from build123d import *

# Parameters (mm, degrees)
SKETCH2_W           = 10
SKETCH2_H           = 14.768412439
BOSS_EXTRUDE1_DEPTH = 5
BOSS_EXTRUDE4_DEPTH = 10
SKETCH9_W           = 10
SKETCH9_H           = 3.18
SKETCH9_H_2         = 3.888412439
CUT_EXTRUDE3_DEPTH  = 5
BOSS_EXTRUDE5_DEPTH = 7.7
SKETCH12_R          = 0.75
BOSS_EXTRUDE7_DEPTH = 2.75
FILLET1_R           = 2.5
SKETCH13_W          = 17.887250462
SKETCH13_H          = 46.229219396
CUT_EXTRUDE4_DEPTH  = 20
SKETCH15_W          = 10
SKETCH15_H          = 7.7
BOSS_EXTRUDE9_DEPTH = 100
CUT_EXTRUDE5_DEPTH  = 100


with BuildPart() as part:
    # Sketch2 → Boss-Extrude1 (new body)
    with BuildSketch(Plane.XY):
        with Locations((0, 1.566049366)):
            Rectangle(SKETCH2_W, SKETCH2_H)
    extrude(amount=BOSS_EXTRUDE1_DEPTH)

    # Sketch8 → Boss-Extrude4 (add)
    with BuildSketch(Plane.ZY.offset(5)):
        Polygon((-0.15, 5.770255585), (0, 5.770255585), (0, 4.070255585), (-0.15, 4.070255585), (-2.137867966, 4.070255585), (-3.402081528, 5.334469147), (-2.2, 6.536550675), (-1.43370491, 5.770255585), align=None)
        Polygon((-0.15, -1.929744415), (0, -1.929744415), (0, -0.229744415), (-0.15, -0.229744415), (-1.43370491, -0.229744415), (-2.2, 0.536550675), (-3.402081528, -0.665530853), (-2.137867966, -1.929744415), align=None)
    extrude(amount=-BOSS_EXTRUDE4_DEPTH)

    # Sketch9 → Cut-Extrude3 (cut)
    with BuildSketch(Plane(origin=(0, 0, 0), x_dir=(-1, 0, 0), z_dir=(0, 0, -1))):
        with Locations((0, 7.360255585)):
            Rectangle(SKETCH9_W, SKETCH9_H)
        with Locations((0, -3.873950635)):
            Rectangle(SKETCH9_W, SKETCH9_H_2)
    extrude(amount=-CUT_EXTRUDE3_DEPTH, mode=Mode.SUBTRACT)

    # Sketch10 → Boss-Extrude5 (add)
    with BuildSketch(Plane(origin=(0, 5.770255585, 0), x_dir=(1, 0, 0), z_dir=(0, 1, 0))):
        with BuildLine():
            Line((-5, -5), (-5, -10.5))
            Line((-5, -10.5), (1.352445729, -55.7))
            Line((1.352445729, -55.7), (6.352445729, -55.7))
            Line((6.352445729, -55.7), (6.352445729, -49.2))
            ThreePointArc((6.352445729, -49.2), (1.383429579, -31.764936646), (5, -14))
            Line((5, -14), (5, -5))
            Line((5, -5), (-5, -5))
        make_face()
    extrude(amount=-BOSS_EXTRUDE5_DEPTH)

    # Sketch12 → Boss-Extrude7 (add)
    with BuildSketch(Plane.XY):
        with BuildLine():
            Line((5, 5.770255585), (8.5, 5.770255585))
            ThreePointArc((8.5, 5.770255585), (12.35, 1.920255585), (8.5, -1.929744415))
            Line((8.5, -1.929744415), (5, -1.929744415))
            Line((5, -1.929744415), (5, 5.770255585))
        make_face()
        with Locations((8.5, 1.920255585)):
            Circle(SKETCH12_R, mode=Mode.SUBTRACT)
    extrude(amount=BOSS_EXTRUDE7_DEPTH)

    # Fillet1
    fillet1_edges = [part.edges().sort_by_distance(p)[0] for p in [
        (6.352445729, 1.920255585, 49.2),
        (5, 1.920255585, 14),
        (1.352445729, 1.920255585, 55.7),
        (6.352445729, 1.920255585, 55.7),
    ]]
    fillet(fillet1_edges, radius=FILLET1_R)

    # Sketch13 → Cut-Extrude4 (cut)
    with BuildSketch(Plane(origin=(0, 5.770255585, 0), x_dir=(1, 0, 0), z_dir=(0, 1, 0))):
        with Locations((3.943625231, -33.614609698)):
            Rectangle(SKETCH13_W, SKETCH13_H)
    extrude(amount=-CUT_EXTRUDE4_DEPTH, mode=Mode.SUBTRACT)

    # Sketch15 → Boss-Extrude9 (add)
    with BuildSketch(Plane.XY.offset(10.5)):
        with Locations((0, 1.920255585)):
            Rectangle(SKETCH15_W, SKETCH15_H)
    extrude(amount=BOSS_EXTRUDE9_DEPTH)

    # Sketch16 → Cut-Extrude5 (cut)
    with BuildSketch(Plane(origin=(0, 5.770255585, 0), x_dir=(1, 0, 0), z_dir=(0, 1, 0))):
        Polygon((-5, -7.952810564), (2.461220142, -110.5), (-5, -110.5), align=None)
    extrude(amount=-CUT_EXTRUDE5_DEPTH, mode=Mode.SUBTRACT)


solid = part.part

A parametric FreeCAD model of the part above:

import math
import FreeCAD as App
import Part
import Sketcher
Q = App.Units.Quantity


def edges_at(feature, points):
    """Names of the edges that pass closest to the given points."""
    edges = feature.Shape.Edges
    near = lambda p: min(range(len(edges)), key=lambda i: edges[i].distToShape(Part.Vertex(*p))[0])
    return sorted({f"Edge{near(p) + 1}" for p in points})

doc = App.newDocument("Part")
body = doc.addObject("PartDesign::Body", "Body")

# Sketch on XY plane
sketch1 = body.newObject("Sketcher::SketchObject", "Sketch")
sketch1.AttachmentSupport = (doc.getObject("XY_Plane"), [""])
sketch1.MapMode = "FlatFace"
sketch1.addGeometry([
    Part.LineSegment(App.Vector(-5, 8.950256, 0), App.Vector(-5, -5.818157, 0)),
    Part.LineSegment(App.Vector(-5, -5.818157, 0), App.Vector(5, -5.818157, 0)),
    Part.LineSegment(App.Vector(5, -5.818157, 0), App.Vector(5, 8.950256, 0)),
    Part.LineSegment(App.Vector(5, 8.950256, 0), App.Vector(-5, 8.950256, 0)),
], False)
sketch1.addConstraint([
    Sketcher.Constraint("Coincident", 0, 2, 1, 1),
    Sketcher.Constraint("Coincident", 1, 2, 2, 1),
    Sketcher.Constraint("Coincident", 2, 2, 3, 1),
    Sketcher.Constraint("Coincident", 3, 2, 0, 1),
    Sketcher.Constraint("Vertical", 0),
    Sketcher.Constraint("Horizontal", 1),
    Sketcher.Constraint("Vertical", 2),
    Sketcher.Constraint("Horizontal", 3),
    Sketcher.Constraint("DistanceX", 1, 1, 1, 2, Q("10 mm")),
    Sketcher.Constraint("DistanceX", 0, 2, -1, 1, Q("5 mm")),
    Sketcher.Constraint("DistanceY", 0, 2, 0, 1, Q("14.768412 mm")),
    Sketcher.Constraint("DistanceY", 0, 2, -1, 1, Q("5.818157 mm")),
])
pad1 = body.newObject("PartDesign::Pad", "Pad")
pad1.Profile = sketch1
pad1.Length = 5

# Sketch on YZ plane
sketch2 = body.newObject("Sketcher::SketchObject", "Sketch001")
sketch2.AttachmentSupport = (doc.getObject("YZ_Plane"), [""])
sketch2.MapMode = "FlatFace"
sketch2.AttachmentOffset = App.Placement(App.Vector(0, 0, -5), App.Rotation())
sketch2.addGeometry([
    Part.LineSegment(App.Vector(5.770256, 0, 0), App.Vector(5.770256, -1.433705, 0)),  # 0
    Part.LineSegment(App.Vector(5.770256, -1.433705, 0), App.Vector(6.536551, -2.2, 0)),  # 1
    Part.LineSegment(App.Vector(6.536551, -2.2, 0), App.Vector(5.334469, -3.402082, 0)),  # 2
    Part.LineSegment(App.Vector(5.334469, -3.402082, 0), App.Vector(4.070256, -2.137868, 0)),  # 3
    Part.LineSegment(App.Vector(4.070256, -2.137868, 0), App.Vector(4.070256, 0, 0)),  # 4
    Part.LineSegment(App.Vector(4.070256, 0, 0), App.Vector(5.770256, 0, 0)),  # 5
    Part.LineSegment(App.Vector(-1.929744, 0, 0), App.Vector(-0.229744, 0, 0)),  # 6
    Part.LineSegment(App.Vector(-0.229744, 0, 0), App.Vector(-0.229744, -1.433705, 0)),  # 7
    Part.LineSegment(App.Vector(-0.229744, -1.433705, 0), App.Vector(0.536551, -2.2, 0)),  # 8
    Part.LineSegment(App.Vector(0.536551, -2.2, 0), App.Vector(-0.665531, -3.402082, 0)),  # 9
    Part.LineSegment(App.Vector(-0.665531, -3.402082, 0), App.Vector(-1.929744, -2.137868, 0)),  # 10
    Part.LineSegment(App.Vector(-1.929744, -2.137868, 0), App.Vector(-1.929744, 0, 0)),  # 11
], False)
sketch2.addConstraint([
    Sketcher.Constraint("Coincident", 0, 2, 1, 1),
    Sketcher.Constraint("Coincident", 1, 2, 2, 1),
    Sketcher.Constraint("Coincident", 2, 2, 3, 1),
    Sketcher.Constraint("Coincident", 3, 2, 4, 1),
    Sketcher.Constraint("Coincident", 4, 2, 5, 1),
    Sketcher.Constraint("Coincident", 5, 2, 0, 1),
    Sketcher.Constraint("Coincident", 6, 2, 7, 1),
    Sketcher.Constraint("Coincident", 7, 2, 8, 1),
    Sketcher.Constraint("Coincident", 8, 2, 9, 1),
    Sketcher.Constraint("Coincident", 9, 2, 10, 1),
    Sketcher.Constraint("Coincident", 10, 2, 11, 1),
    Sketcher.Constraint("Coincident", 11, 2, 6, 1),
    Sketcher.Constraint("Vertical", 0),
    Sketcher.Constraint("Vertical", 4),
    Sketcher.Constraint("Horizontal", 5),
    Sketcher.Constraint("Horizontal", 6),
    Sketcher.Constraint("Vertical", 7),
    Sketcher.Constraint("Vertical", 11),
    Sketcher.Constraint("PointOnObject", 4, 2, -1),
    Sketcher.Constraint("PointOnObject", 6, 2, -1),
    Sketcher.Constraint("Perpendicular", 1, 2),
    Sketcher.Constraint("Perpendicular", 2, 3),
    Sketcher.Constraint("Parallel", 3, 8),
    Sketcher.Constraint("Perpendicular", 8, 9),
    Sketcher.Constraint("Perpendicular", 9, 10),
    Sketcher.Constraint("Horizontal", 0, 2, 7, 2),
    Sketcher.Constraint("Horizontal", 1, 2, 8, 2),
    Sketcher.Constraint("Horizontal", 2, 2, 9, 2),
    Sketcher.Constraint("Horizontal", 3, 2, 10, 2),
    Sketcher.Constraint("Angle", 1, Q("-45 deg")),
    Sketcher.Constraint("DistanceX", 5, 1, 5, 2, Q("1.7 mm")),
    Sketcher.Constraint("DistanceX", 6, 2, 5, 2, Q("6 mm")),
    Sketcher.Constraint("Distance", 2, Q("1.7 mm")),
    Sketcher.Constraint("DistanceY", 1, 2, -1, 1, Q("2.2 mm")),
    Sketcher.Constraint("DistanceY", 0, 2, 0, 1, Q("1.433705 mm")),
    Sketcher.Constraint("DistanceX", -1, 1, 1, 2, Q("6.536551 mm")),
])
pad2 = body.newObject("PartDesign::Pad", "Pad001")
pad2.Profile = sketch2
pad2.Length = 10

# Sketch on XY plane
sketch3 = body.newObject("Sketcher::SketchObject", "Sketch002")
sketch3.AttachmentSupport = (doc.getObject("XY_Plane"), [""])
sketch3.MapMode = "FlatFace"
sketch3.addGeometry([
    Part.LineSegment(App.Vector(5, 8.950256, 0), App.Vector(5, 5.770256, 0)),  # 0
    Part.LineSegment(App.Vector(5, 5.770256, 0), App.Vector(-5, 5.770256, 0)),  # 1
    Part.LineSegment(App.Vector(-5, 5.770256, 0), App.Vector(-5, 8.950256, 0)),  # 2
    Part.LineSegment(App.Vector(-5, 8.950256, 0), App.Vector(5, 8.950256, 0)),  # 3
    Part.LineSegment(App.Vector(5, -1.929744, 0), App.Vector(5, -5.818157, 0)),  # 4
    Part.LineSegment(App.Vector(5, -5.818157, 0), App.Vector(-5, -5.818157, 0)),  # 5
    Part.LineSegment(App.Vector(-5, -5.818157, 0), App.Vector(-5, -1.929744, 0)),  # 6
    Part.LineSegment(App.Vector(-5, -1.929744, 0), App.Vector(5, -1.929744, 0)),  # 7
], False)
sketch3.addConstraint([
    Sketcher.Constraint("Coincident", 0, 2, 1, 1),
    Sketcher.Constraint("Coincident", 1, 2, 2, 1),
    Sketcher.Constraint("Coincident", 2, 2, 3, 1),
    Sketcher.Constraint("Coincident", 3, 2, 0, 1),
    Sketcher.Constraint("Coincident", 4, 2, 5, 1),
    Sketcher.Constraint("Coincident", 5, 2, 6, 1),
    Sketcher.Constraint("Coincident", 6, 2, 7, 1),
    Sketcher.Constraint("Coincident", 7, 2, 4, 1),
    Sketcher.Constraint("Vertical", 0),
    Sketcher.Constraint("Horizontal", 1),
    Sketcher.Constraint("Vertical", 2),
    Sketcher.Constraint("Horizontal", 3),
    Sketcher.Constraint("Vertical", 4),
    Sketcher.Constraint("Horizontal", 5),
    Sketcher.Constraint("Vertical", 6),
    Sketcher.Constraint("Horizontal", 7),
    Sketcher.Constraint("Vertical", 3, 2, 4, 2),
    Sketcher.Constraint("Vertical", 2, 2, 5, 2),
    Sketcher.Constraint("DistanceX", 1, 2, 1, 1, Q("10 mm")),
    Sketcher.Constraint("DistanceX", -1, 1, 0, 2, Q("5 mm")),
    Sketcher.Constraint("DistanceY", 0, 2, 0, 1, Q("3.18 mm")),
    Sketcher.Constraint("DistanceY", 6, 2, 1, 2, Q("7.7 mm")),
    Sketcher.Constraint("DistanceY", 4, 2, 4, 1, Q("3.888412 mm")),
    Sketcher.Constraint("DistanceY", -1, 1, 0, 2, Q("5.770256 mm")),
])
pocket1 = body.newObject("PartDesign::Pocket", "Pocket")
pocket1.Profile = sketch3
pocket1.Length = 5
pocket1.Reversed = True

# Sketch on XZ plane
sketch4 = body.newObject("Sketcher::SketchObject", "Sketch003")
sketch4.AttachmentSupport = (doc.getObject("XZ_Plane"), [""])
sketch4.MapMode = "FlatFace"
sketch4.AttachmentOffset = App.Placement(App.Vector(0, 0, -5.770256), App.Rotation())
sketch4.addGeometry([
    Part.LineSegment(App.Vector(-5, 5, 0), App.Vector(-5, 10.5, 0)),  # 0
    Part.LineSegment(App.Vector(-5, 10.5, 0), App.Vector(1.352446, 55.7, 0)),  # 1
    Part.LineSegment(App.Vector(1.352446, 55.7, 0), App.Vector(6.352446, 55.7, 0)),  # 2
    Part.LineSegment(App.Vector(6.352446, 55.7, 0), App.Vector(6.352446, 49.2, 0)),  # 3
    Part.ArcOfCircle(Part.Circle(App.Vector(39.608899, 30.296247, 0), App.Vector(0, 0, 1), 38.253674), math.radians(150.385078), math.radians(205.214278)),  # 4
    Part.LineSegment(App.Vector(5, 14, 0), App.Vector(5, 5, 0)),  # 5
    Part.LineSegment(App.Vector(5, 5, 0), App.Vector(-5, 5, 0)),  # 6
], False)
sketch4.addConstraint([
    Sketcher.Constraint("Coincident", 0, 2, 1, 1),
    Sketcher.Constraint("Coincident", 1, 2, 2, 1),
    Sketcher.Constraint("Coincident", 2, 2, 3, 1),
    Sketcher.Constraint("Coincident", 3, 2, 4, 1),
    Sketcher.Constraint("Coincident", 4, 2, 5, 1),
    Sketcher.Constraint("Coincident", 5, 2, 6, 1),
    Sketcher.Constraint("Coincident", 6, 2, 0, 1),
    Sketcher.Constraint("Vertical", 0),
    Sketcher.Constraint("Horizontal", 2),
    Sketcher.Constraint("Vertical", 3),
    Sketcher.Constraint("Vertical", 5),
    Sketcher.Constraint("Horizontal", 6),
    Sketcher.Constraint("DistanceX", 2, 1, 2, 2, Q("5 mm")),
    Sketcher.Constraint("DistanceX", 6, 2, 6, 1, Q("10 mm")),
    Sketcher.Constraint("DistanceY", 5, 2, 5, 1, Q("9 mm")),
    Sketcher.Constraint("Angle", 1, Q("82 deg")),
    Sketcher.Constraint("DistanceY", 0, 1, 0, 2, Q("5.5 mm")),
    Sketcher.Constraint("DistanceY", 3, 2, 3, 1, Q("6.5 mm")),
    Sketcher.Constraint("DistanceX", 0, 2, -1, 1, Q("5 mm")),
    Sketcher.Constraint("DistanceY", -1, 1, 4, 2, Q("14 mm")),
    Sketcher.Constraint("DistanceY", -1, 1, 1, 2, Q("55.7 mm")),
    Sketcher.Constraint("Radius", 4, Q("38.253674 mm")),
])
pad3 = body.newObject("PartDesign::Pad", "Pad002")
pad3.Profile = sketch4
pad3.Length = 7.7

# Sketch on XY plane
sketch5 = body.newObject("Sketcher::SketchObject", "Sketch004")
sketch5.AttachmentSupport = (doc.getObject("XY_Plane"), [""])
sketch5.MapMode = "FlatFace"
sketch5.addGeometry([
    Part.LineSegment(App.Vector(8.5, 5.770256, 0), App.Vector(5, 5.770256, 0)),  # 0
    Part.LineSegment(App.Vector(5, 5.770256, 0), App.Vector(5, -1.929744, 0)),  # 1
    Part.LineSegment(App.Vector(5, -1.929744, 0), App.Vector(8.5, -1.929744, 0)),  # 2
    Part.ArcOfCircle(Part.Circle(App.Vector(8.5, 1.920256, 0), App.Vector(0, 0, 1), 3.85), math.radians(-90), math.radians(90)),  # 3
    Part.Circle(App.Vector(8.5, 1.920256, 0), App.Vector(0, 0, 1), 0.75),  # 4
], False)
sketch5.addConstraint([
    Sketcher.Constraint("Coincident", 0, 2, 1, 1),
    Sketcher.Constraint("Coincident", 1, 2, 2, 1),
    Sketcher.Constraint("Tangent", 2, 2, 3, 1),
    Sketcher.Constraint("Tangent", 3, 2, 0, 1),
    Sketcher.Constraint("Horizontal", 0),
    Sketcher.Constraint("Vertical", 1),
    Sketcher.Constraint("Horizontal", 2),
    Sketcher.Constraint("Coincident", 4, 3, 3, 3),
    Sketcher.Constraint("Diameter", 4, Q("1.5 mm")),
    Sketcher.Constraint("Radius", 3, Q("3.85 mm")),
    Sketcher.Constraint("DistanceX", 0, 2, 0, 1, Q("3.5 mm")),
    Sketcher.Constraint("DistanceX", -1, 1, 0, 2, Q("5 mm")),
    Sketcher.Constraint("DistanceY", -1, 1, 3, 3, Q("1.920256 mm")),
])
pad4 = body.newObject("PartDesign::Pad", "Pad003")
pad4.Profile = sketch5
pad4.Length = 2.75
doc.recompute()

fillet = body.newObject("PartDesign::Fillet", "Fillet")
fillet.Base = (pad4, edges_at(pad4, [
    (6.352, 1.92, 49.2),
    (5, 1.92, 14),
    (1.352, 1.92, 55.7),
    (6.352, 1.92, 55.7),
]))
fillet.Radius = 2.5

# Sketch on XZ plane
sketch6 = body.newObject("Sketcher::SketchObject", "Sketch005")
sketch6.AttachmentSupport = (doc.getObject("XZ_Plane"), [""])
sketch6.MapMode = "FlatFace"
sketch6.AttachmentOffset = App.Placement(App.Vector(0, 0, -5.770256), App.Rotation())
sketch6.addGeometry([
    Part.LineSegment(App.Vector(-5, 10.5, 0), App.Vector(-5, 56.729219, 0)),
    Part.LineSegment(App.Vector(-5, 56.729219, 0), App.Vector(12.88725, 56.729219, 0)),
    Part.LineSegment(App.Vector(12.88725, 56.729219, 0), App.Vector(12.88725, 10.5, 0)),
    Part.LineSegment(App.Vector(12.88725, 10.5, 0), App.Vector(-5, 10.5, 0)),
], False)
sketch6.addConstraint([
    Sketcher.Constraint("Coincident", 0, 2, 1, 1),
    Sketcher.Constraint("Coincident", 1, 2, 2, 1),
    Sketcher.Constraint("Coincident", 2, 2, 3, 1),
    Sketcher.Constraint("Coincident", 3, 2, 0, 1),
    Sketcher.Constraint("Vertical", 0),
    Sketcher.Constraint("Horizontal", 1),
    Sketcher.Constraint("Vertical", 2),
    Sketcher.Constraint("Horizontal", 3),
    Sketcher.Constraint("DistanceX", 0, 2, -1, 1, Q("5 mm")),
    Sketcher.Constraint("DistanceY", -1, 1, 2, 2, Q("10.5 mm")),
    Sketcher.Constraint("DistanceX", 1, 1, 1, 2, Q("17.88725 mm")),
    Sketcher.Constraint("DistanceY", 0, 1, 0, 2, Q("46.229219 mm")),
])
pocket2 = body.newObject("PartDesign::Pocket", "Pocket001")
pocket2.Profile = sketch6
pocket2.Length = 20
pocket2.Reversed = True

# Sketch on XY plane
sketch7 = body.newObject("Sketcher::SketchObject", "Sketch006")
sketch7.AttachmentSupport = (doc.getObject("XY_Plane"), [""])
sketch7.MapMode = "FlatFace"
sketch7.AttachmentOffset = App.Placement(App.Vector(0, 0, 10.5), App.Rotation())
sketch7.addGeometry([
    Part.LineSegment(App.Vector(-5, 5.770256, 0), App.Vector(-5, -1.929744, 0)),
    Part.LineSegment(App.Vector(-5, -1.929744, 0), App.Vector(5, -1.929744, 0)),
    Part.LineSegment(App.Vector(5, -1.929744, 0), App.Vector(5, 5.770256, 0)),
    Part.LineSegment(App.Vector(5, 5.770256, 0), App.Vector(-5, 5.770256, 0)),
], False)
sketch7.addConstraint([
    Sketcher.Constraint("Coincident", 0, 2, 1, 1),
    Sketcher.Constraint("Coincident", 1, 2, 2, 1),
    Sketcher.Constraint("Coincident", 2, 2, 3, 1),
    Sketcher.Constraint("Coincident", 3, 2, 0, 1),
    Sketcher.Constraint("Vertical", 0),
    Sketcher.Constraint("Horizontal", 1),
    Sketcher.Constraint("Vertical", 2),
    Sketcher.Constraint("Horizontal", 3),
    Sketcher.Constraint("DistanceX", 1, 1, 1, 2, Q("10 mm")),
    Sketcher.Constraint("DistanceY", 0, 2, 0, 1, Q("7.7 mm")),
    Sketcher.Constraint("DistanceX", 0, 2, -1, 1, Q("5 mm")),
    Sketcher.Constraint("DistanceY", 0, 2, -1, 1, Q("1.929744 mm")),
])
pad5 = body.newObject("PartDesign::Pad", "Pad004")
pad5.Profile = sketch7
pad5.Length = 100

# Sketch on XZ plane
sketch8 = body.newObject("Sketcher::SketchObject", "Sketch007")
sketch8.AttachmentSupport = (doc.getObject("XZ_Plane"), [""])
sketch8.MapMode = "FlatFace"
sketch8.AttachmentOffset = App.Placement(App.Vector(0, 0, -5.770256), App.Rotation())
sketch8.addGeometry([
    Part.LineSegment(App.Vector(2.46122, 110.5, 0), App.Vector(-5, 7.952811, 0)),
    Part.LineSegment(App.Vector(-5, 7.952811, 0), App.Vector(-5, 110.5, 0)),
    Part.LineSegment(App.Vector(-5, 110.5, 0), App.Vector(2.46122, 110.5, 0)),
], False)
sketch8.addConstraint([
    Sketcher.Constraint("Coincident", 0, 2, 1, 1),
    Sketcher.Constraint("Coincident", 1, 2, 2, 1),
    Sketcher.Constraint("Coincident", 2, 2, 0, 1),
    Sketcher.Constraint("Vertical", 1),
    Sketcher.Constraint("Horizontal", 2),
    Sketcher.Constraint("DistanceX", 0, 2, -1, 1, Q("5 mm")),
    Sketcher.Constraint("DistanceY", -1, 1, 1, 2, Q("110.5 mm")),
    Sketcher.Constraint("DistanceX", 2, 1, 2, 2, Q("7.46122 mm")),
    Sketcher.Constraint("DistanceY", 1, 1, 1, 2, Q("102.547189 mm")),
])
pocket3 = body.newObject("PartDesign::Pocket", "Pocket002")
pocket3.Profile = sketch8
pocket3.Length = 100
pocket3.Reversed = True

doc.recompute()
